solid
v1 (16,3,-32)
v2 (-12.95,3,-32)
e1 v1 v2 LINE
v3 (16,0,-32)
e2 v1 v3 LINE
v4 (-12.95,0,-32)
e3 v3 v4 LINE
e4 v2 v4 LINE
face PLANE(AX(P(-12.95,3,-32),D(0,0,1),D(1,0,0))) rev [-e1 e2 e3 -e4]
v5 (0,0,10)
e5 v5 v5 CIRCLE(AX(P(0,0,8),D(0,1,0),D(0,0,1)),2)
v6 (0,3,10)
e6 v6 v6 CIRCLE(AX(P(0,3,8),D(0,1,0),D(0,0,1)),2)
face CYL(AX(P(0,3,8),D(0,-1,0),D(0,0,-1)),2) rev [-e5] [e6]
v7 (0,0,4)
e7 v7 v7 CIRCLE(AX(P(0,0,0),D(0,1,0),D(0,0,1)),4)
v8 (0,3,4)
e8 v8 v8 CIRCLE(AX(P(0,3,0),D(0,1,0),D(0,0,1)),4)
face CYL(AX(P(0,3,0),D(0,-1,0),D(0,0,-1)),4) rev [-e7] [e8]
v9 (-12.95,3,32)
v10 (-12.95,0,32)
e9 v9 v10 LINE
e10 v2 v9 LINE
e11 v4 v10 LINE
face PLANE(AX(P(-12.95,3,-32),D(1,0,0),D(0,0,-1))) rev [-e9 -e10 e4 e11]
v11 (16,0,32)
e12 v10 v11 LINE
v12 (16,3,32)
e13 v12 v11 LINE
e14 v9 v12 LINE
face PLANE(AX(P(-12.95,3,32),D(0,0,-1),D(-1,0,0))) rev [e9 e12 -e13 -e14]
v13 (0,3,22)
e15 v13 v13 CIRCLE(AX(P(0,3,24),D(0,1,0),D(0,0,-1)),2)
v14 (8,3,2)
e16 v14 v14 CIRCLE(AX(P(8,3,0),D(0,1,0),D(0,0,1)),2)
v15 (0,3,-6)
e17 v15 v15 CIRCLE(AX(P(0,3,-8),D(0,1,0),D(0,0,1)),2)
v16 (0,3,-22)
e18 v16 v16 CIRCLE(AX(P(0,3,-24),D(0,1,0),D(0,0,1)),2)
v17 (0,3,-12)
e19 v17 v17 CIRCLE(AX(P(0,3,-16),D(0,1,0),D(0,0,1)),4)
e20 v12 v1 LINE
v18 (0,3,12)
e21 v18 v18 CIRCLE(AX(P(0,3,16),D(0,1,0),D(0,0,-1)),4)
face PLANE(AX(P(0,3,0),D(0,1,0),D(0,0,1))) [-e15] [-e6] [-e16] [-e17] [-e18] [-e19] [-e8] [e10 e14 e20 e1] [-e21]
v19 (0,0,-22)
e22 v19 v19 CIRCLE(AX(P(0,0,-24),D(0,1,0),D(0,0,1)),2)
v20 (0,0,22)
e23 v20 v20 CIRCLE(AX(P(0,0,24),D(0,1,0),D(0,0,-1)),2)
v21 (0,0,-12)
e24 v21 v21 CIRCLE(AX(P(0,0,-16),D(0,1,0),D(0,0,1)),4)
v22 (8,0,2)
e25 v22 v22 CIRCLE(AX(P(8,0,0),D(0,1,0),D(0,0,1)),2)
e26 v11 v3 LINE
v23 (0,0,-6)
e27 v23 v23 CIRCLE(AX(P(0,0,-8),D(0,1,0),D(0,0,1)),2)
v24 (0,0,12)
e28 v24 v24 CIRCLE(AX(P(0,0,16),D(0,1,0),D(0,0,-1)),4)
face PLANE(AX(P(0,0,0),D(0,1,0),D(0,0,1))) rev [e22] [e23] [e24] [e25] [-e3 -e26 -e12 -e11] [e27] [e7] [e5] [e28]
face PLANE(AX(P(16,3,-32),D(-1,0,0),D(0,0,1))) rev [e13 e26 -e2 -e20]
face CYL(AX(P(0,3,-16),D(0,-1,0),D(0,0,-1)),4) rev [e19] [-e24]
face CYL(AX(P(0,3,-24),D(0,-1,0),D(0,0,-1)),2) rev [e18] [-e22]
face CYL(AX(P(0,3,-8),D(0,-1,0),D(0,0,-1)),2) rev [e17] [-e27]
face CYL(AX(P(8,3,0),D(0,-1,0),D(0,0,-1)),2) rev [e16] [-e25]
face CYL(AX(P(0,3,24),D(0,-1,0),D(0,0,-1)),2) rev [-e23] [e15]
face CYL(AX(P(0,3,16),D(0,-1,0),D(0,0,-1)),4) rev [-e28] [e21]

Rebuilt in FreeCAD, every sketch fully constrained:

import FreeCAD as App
import Part
import Sketcher
Q = App.Units.Quantity

doc = App.newDocument("Part")
body = doc.addObject("PartDesign::Body", "Body")

# Sketch on XZ plane
sketch1 = body.newObject("Sketcher::SketchObject", "Sketch")
sketch1.AttachmentSupport = (doc.getObject("XZ_Plane"), [""])
sketch1.MapMode = "FlatFace"
sketch1.addGeometry([
    Part.LineSegment(App.Vector(-12.9, -32, 0), App.Vector(-12.9, 32, 0)),  # 0
    Part.LineSegment(App.Vector(-12.9, 32, 0), App.Vector(16, 32, 0)),  # 1
    Part.LineSegment(App.Vector(16, 32, 0), App.Vector(16, -32, 0)),  # 2
    Part.LineSegment(App.Vector(16, -32, 0), App.Vector(-12.9, -32, 0)),  # 3
    Part.Circle(App.Vector(0, 24, 0), App.Vector(0, 0, 1), 2),  # 4
    Part.Circle(App.Vector(0, 16, 0), App.Vector(0, 0, 1), 4),  # 5
    Part.Circle(App.Vector(0, 8, 0), App.Vector(0, 0, 1), 2),  # 6
    Part.Circle(App.Vector(0, 0, 0), App.Vector(0, 0, 1), 4),  # 7
    Part.Circle(App.Vector(0, -8, 0), App.Vector(0, 0, 1), 2),  # 8
    Part.Circle(App.Vector(0, -16, 0), App.Vector(0, 0, 1), 4),  # 9
    Part.Circle(App.Vector(0, -24, 0), App.Vector(0, 0, 1), 2),  # 10
    Part.Circle(App.Vector(8, 0, 0), App.Vector(0, 0, 1), 2),  # 11
], False)
sketch1.addConstraint([
    Sketcher.Constraint("Coincident", 0, 2, 1, 1),
    Sketcher.Constraint("Coincident", 1, 2, 2, 1),
    Sketcher.Constraint("Coincident", 2, 2, 3, 1),
    Sketcher.Constraint("Coincident", 3, 2, 0, 1),
    Sketcher.Constraint("Vertical", 0),
    Sketcher.Constraint("Horizontal", 1),
    Sketcher.Constraint("Vertical", 2),
    Sketcher.Constraint("Horizontal", 3),
    Sketcher.Constraint("Coincident", 7, 3, -1, 1),
    Sketcher.Constraint("Equal", 4, 6),
    Sketcher.Constraint("Equal", 5, 7),
    Sketcher.Constraint("Equal", 6, 8),
    Sketcher.Constraint("Equal", 7, 9),
    Sketcher.Constraint("Equal", 8, 10),
    Sketcher.Constraint("Equal", 10, 11),
    Sketcher.Constraint("Symmetric", 6, 3, 8, 3, -1, 1),
    Sketcher.Constraint("Symmetric", 5, 3, 9, 3, -1, 1),
    Sketcher.Constraint("Symmetric", 4, 3, 10, 3, -1, 1),
    Sketcher.Constraint("PointOnObject", 4, 3, -2),
    Sketcher.Constraint("PointOnObject", 5, 3, -2),
    Sketcher.Constraint("PointOnObject", 6, 3, -2),
    Sketcher.Constraint("PointOnObject", 11, 3, -1),
    Sketcher.Constraint("Diameter", 4, Q("4 mm")),
    Sketcher.Constraint("Diameter", 5, Q("8 mm")),
    Sketcher.Constraint("DistanceY", 0, 1, 0, 2, Q("64 mm")),
    Sketcher.Constraint("DistanceY", -1, 1, 4, 3, Q("24 mm")),
    Sketcher.Constraint("DistanceY", -1, 1, 5, 3, Q("16 mm")),
    Sketcher.Constraint("DistanceY", -1, 1, 6, 3, Q("8 mm")),
    Sketcher.Constraint("DistanceX", -1, 1, 11, 3, Q("8 mm")),
    Sketcher.Constraint("DistanceY", -1, 1, 0, 2, Q("32 mm")),
    Sketcher.Constraint("DistanceX", -1, 1, 1, 2, Q("16 mm")),
    Sketcher.Constraint("DistanceX", 1, 1, 1, 2, Q("28.95 mm")),
])
pad1 = body.newObject("PartDesign::Pad", "Pad")
pad1.Profile = sketch1
pad1.Length = 3
pad1.Reversed = True

doc.recompute()
